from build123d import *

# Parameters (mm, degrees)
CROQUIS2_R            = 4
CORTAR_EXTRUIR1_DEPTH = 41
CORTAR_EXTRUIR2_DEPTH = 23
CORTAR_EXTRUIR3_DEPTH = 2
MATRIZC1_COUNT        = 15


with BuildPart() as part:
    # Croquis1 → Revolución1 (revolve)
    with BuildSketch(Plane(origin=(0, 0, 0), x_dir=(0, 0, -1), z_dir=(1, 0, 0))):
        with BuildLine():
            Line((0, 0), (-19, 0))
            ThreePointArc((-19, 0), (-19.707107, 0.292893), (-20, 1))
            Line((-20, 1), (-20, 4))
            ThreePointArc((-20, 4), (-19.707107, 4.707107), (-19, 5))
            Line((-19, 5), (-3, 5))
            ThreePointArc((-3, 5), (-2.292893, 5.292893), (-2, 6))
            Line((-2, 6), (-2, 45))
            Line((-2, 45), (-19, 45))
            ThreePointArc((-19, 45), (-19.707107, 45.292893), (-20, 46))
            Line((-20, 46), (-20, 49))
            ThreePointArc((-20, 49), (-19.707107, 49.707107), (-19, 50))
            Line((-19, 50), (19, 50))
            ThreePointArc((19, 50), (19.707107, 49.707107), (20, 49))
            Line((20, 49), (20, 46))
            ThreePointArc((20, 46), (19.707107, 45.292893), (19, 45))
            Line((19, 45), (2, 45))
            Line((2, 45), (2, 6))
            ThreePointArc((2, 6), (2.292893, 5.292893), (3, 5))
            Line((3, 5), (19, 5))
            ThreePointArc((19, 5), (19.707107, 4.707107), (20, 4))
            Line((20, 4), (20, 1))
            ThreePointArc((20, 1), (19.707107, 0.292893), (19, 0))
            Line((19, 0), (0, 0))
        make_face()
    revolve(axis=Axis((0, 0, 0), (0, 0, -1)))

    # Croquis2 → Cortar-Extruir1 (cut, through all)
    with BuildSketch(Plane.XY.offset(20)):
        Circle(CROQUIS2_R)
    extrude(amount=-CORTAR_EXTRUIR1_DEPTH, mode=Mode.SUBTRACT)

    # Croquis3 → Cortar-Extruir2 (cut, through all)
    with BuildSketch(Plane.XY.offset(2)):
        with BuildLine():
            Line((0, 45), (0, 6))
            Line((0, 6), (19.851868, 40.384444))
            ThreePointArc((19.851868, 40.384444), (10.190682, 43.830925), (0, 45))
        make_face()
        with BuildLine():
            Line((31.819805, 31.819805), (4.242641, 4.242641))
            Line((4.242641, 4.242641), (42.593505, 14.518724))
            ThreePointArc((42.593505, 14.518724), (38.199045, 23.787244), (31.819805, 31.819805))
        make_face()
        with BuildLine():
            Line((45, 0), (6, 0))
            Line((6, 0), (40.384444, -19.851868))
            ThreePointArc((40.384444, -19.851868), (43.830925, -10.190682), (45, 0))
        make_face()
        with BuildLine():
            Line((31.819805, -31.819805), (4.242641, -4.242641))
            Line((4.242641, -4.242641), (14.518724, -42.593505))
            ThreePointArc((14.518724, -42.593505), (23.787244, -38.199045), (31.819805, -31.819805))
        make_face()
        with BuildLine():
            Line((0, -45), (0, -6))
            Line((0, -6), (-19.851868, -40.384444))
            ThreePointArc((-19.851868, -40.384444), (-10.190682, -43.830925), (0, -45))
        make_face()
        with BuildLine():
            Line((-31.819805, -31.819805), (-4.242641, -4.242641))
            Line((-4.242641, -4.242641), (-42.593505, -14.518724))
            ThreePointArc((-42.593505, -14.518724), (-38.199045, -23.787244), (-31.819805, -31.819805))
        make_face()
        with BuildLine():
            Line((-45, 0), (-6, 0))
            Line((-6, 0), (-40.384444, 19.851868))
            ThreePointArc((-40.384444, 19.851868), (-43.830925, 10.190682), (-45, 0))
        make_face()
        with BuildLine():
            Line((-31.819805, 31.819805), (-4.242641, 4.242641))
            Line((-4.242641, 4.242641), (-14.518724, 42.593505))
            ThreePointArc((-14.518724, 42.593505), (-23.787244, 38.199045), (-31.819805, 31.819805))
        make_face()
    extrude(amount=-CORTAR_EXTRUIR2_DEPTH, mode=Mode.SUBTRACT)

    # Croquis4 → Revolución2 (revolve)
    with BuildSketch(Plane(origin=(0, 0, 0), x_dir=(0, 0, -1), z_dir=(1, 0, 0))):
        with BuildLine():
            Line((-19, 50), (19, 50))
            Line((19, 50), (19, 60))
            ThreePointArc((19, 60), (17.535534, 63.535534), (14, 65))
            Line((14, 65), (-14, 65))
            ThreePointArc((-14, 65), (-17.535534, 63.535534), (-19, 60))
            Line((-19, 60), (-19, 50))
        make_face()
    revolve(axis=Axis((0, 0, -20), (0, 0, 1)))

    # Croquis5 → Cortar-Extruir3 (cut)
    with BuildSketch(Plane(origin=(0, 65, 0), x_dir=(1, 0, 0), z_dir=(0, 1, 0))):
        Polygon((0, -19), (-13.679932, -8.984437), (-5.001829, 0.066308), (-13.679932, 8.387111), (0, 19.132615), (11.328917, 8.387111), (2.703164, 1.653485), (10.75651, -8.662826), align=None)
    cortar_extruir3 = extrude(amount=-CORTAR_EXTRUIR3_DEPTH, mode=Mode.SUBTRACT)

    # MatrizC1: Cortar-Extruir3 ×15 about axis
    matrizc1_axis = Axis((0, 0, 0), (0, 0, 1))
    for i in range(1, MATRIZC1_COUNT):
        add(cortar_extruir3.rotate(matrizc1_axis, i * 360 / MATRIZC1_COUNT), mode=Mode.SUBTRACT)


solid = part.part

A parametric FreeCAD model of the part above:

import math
import FreeCAD as App
import Part
import Sketcher
Q = App.Units.Quantity


def add_polygon(sketch, points):
    """Adds a closed chain of lines whose ends are joined by coincident constraints."""
    first, n = sketch.GeometryCount, len(points)
    for a, b in zip(points, points[1:] + points[:1]):
        sketch.addGeometry(Part.LineSegment(App.Vector(*a, 0), App.Vector(*b, 0)), False)
    for i in range(n):
        sketch.addConstraint(Sketcher.Constraint("Coincident", first + i, 2, first + (i + 1) % n, 1))

doc = App.newDocument("Part")
params = doc.addObject("Spreadsheet::Sheet", "Params")
for row, (alias, value) in enumerate([
    ("sketch1_radius", "0.999999 mm"),
    ("sketch1_width", "3 mm"),
    ("sketch1_width2", "39 mm"),
    ("sketch1_height", "38 mm"),
    ("sketch1_height2", "16 mm"),
    ("revolution_angle", "360 deg"),
    ("sketch2_diameter", "8 mm"),
    ("sketch3_radius", "45.000002 mm"),
    ("sketch3_width", "39 mm"),
    ("sketch3_length", "38.999999 mm"),
    ("sketch4_radius", "5 mm"),
    ("sketch4_width", "10 mm"),
    ("sketch4_height", "38 mm"),
    ("revolution2_angle", "360 deg"),
    ("pocket3_length", "2 mm"),
], start=1):
    params.set(f"A{row}", alias)
    params.set(f"B{row}", "=" + value)
    params.setAlias(f"B{row}", alias)

body = doc.addObject("PartDesign::Body", "Body")

sketch1 = body.newObject("Sketcher::SketchObject", "Sketch")
sketch1.AttachmentSupport = (doc.getObject("YZ_Plane"), [""])
sketch1.MapMode = "FlatFace"
sketch1.addGeometry(Part.ArcOfCircle(Part.Circle(App.Vector(0.999999, 19.000001, 0), App.Vector(0, 0, 1), 0.999999), math.radians(89.999957), math.radians(180.000043)), False)
sketch1.addGeometry(Part.LineSegment(App.Vector(0, 19, 0), App.Vector(0, -19, 0)), False)
sketch1.addGeometry(Part.ArcOfCircle(Part.Circle(App.Vector(0.999999, -19.000001, 0), App.Vector(0, 0, 1), 0.999999), math.radians(179.999957), math.radians(270.000043)), False)
sketch1.addGeometry(Part.LineSegment(App.Vector(1, -20, 0), App.Vector(4, -20, 0)), False)
sketch1.addGeometry(Part.ArcOfCircle(Part.Circle(App.Vector(4.000001, -19.000001, 0), App.Vector(0, 0, 1), 0.999999), math.radians(-90.000043), math.radians(0.000043)), False)
sketch1.addGeometry(Part.LineSegment(App.Vector(5, -19, 0), App.Vector(5, -3, 0)), False)
sketch1.addGeometry(Part.ArcOfCircle(Part.Circle(App.Vector(5.999999, -2.999999, 0), App.Vector(0, 0, 1), 0.999999), math.radians(89.999957), math.radians(180.000043)), False)
sketch1.addGeometry(Part.LineSegment(App.Vector(6, -2, 0), App.Vector(45, -2, 0)), False)
sketch1.addGeometry(Part.LineSegment(App.Vector(45, -2, 0), App.Vector(45, -19, 0)), False)
sketch1.addGeometry(Part.ArcOfCircle(Part.Circle(App.Vector(45.999999, -19.000001, 0), App.Vector(0, 0, 1), 0.999999), math.radians(179.999957), math.radians(270.000043)), False)
sketch1.addGeometry(Part.LineSegment(App.Vector(46, -20, 0), App.Vector(49, -20, 0)), False)
sketch1.addGeometry(Part.ArcOfCircle(Part.Circle(App.Vector(49.000001, -19.000001, 0), App.Vector(0, 0, 1), 0.999999), math.radians(-90.000043), math.radians(0.000043)), False)
sketch1.addGeometry(Part.LineSegment(App.Vector(50, -19, 0), App.Vector(50, 19, 0)), False)
sketch1.addGeometry(Part.ArcOfCircle(Part.Circle(App.Vector(49.000001, 19.000001, 0), App.Vector(0, 0, 1), 0.999999), math.radians(-0.000043), math.radians(90.000043)), False)
sketch1.addGeometry(Part.LineSegment(App.Vector(49, 20, 0), App.Vector(46, 20, 0)), False)
sketch1.addGeometry(Part.ArcOfCircle(Part.Circle(App.Vector(45.999999, 19.000001, 0), App.Vector(0, 0, 1), 0.999999), math.radians(89.999957), math.radians(180.000043)), False)
sketch1.addGeometry(Part.LineSegment(App.Vector(45, 19, 0), App.Vector(45, 2, 0)), False)
sketch1.addGeometry(Part.LineSegment(App.Vector(45, 2, 0), App.Vector(6, 2, 0)), False)
sketch1.addGeometry(Part.ArcOfCircle(Part.Circle(App.Vector(5.999999, 2.999999, 0), App.Vector(0, 0, 1), 0.999999), math.radians(179.999957), math.radians(270.000043)), False)
sketch1.addGeometry(Part.LineSegment(App.Vector(5, 3, 0), App.Vector(5, 19, 0)), False)
sketch1.addGeometry(Part.ArcOfCircle(Part.Circle(App.Vector(4.000001, 19.000001, 0), App.Vector(0, 0, 1), 0.999999), math.radians(-0.000043), math.radians(90.000043)), False)
sketch1.addGeometry(Part.LineSegment(App.Vector(4, 20, 0), App.Vector(1, 20, 0)), False)
sketch1.addConstraint(Sketcher.Constraint("Tangent", 0, 2, 1, 1))
sketch1.addConstraint(Sketcher.Constraint("Tangent", 1, 2, 2, 1))
sketch1.addConstraint(Sketcher.Constraint("Tangent", 2, 2, 3, 1))
sketch1.addConstraint(Sketcher.Constraint("Tangent", 3, 2, 4, 1))
sketch1.addConstraint(Sketcher.Constraint("Tangent", 4, 2, 5, 1))
sketch1.addConstraint(Sketcher.Constraint("Tangent", 5, 2, 6, 2))
sketch1.addConstraint(Sketcher.Constraint("Tangent", 6, 1, 7, 1))
sketch1.addConstraint(Sketcher.Constraint("Coincident", 7, 2, 8, 1))
sketch1.addConstraint(Sketcher.Constraint("Tangent", 8, 2, 9, 1))
sketch1.addConstraint(Sketcher.Constraint("Tangent", 9, 2, 10, 1))
sketch1.addConstraint(Sketcher.Constraint("Tangent", 10, 2, 11, 1))
sketch1.addConstraint(Sketcher.Constraint("Tangent", 11, 2, 12, 1))
sketch1.addConstraint(Sketcher.Constraint("Tangent", 12, 2, 13, 1))
sketch1.addConstraint(Sketcher.Constraint("Tangent", 13, 2, 14, 1))
sketch1.addConstraint(Sketcher.Constraint("Tangent", 14, 2, 15, 1))
sketch1.addConstraint(Sketcher.Constraint("Tangent", 15, 2, 16, 1))
sketch1.addConstraint(Sketcher.Constraint("Coincident", 16, 2, 17, 1))
sketch1.addConstraint(Sketcher.Constraint("Tangent", 17, 2, 18, 2))
sketch1.addConstraint(Sketcher.Constraint("Tangent", 18, 1, 19, 1))
sketch1.addConstraint(Sketcher.Constraint("Tangent", 19, 2, 20, 1))
sketch1.addConstraint(Sketcher.Constraint("Tangent", 20, 2, 21, 1))
sketch1.addConstraint(Sketcher.Constraint("Tangent", 21, 2, 0, 1))
sketch1.addConstraint(Sketcher.Constraint("Vertical", 1))
sketch1.addConstraint(Sketcher.Constraint("Horizontal", 3))
sketch1.addConstraint(Sketcher.Constraint("Vertical", 5))
sketch1.addConstraint(Sketcher.Constraint("Horizontal", 7))
sketch1.addConstraint(Sketcher.Constraint("Vertical", 8))
sketch1.addConstraint(Sketcher.Constraint("Horizontal", 10))
sketch1.addConstraint(Sketcher.Constraint("Vertical", 12))
sketch1.addConstraint(Sketcher.Constraint("Horizontal", 14))
sketch1.addConstraint(Sketcher.Constraint("Vertical", 16))
sketch1.addConstraint(Sketcher.Constraint("Horizontal", 17))
sketch1.addConstraint(Sketcher.Constraint("Vertical", 19))
sketch1.addConstraint(Sketcher.Constraint("Horizontal", 21))
sketch1.addConstraint(Sketcher.Constraint("Equal", 0, 2))
sketch1.addConstraint(Sketcher.Constraint("Equal", 2, 4))
sketch1.addConstraint(Sketcher.Constraint("Equal", 4, 6))
sketch1.addConstraint(Sketcher.Constraint("Equal", 6, 9))
sketch1.addConstraint(Sketcher.Constraint("Equal", 9, 11))
sketch1.addConstraint(Sketcher.Constraint("Equal", 11, 13))
sketch1.addConstraint(Sketcher.Constraint("Equal", 13, 15))
sketch1.addConstraint(Sketcher.Constraint("Equal", 15, 18))
sketch1.addConstraint(Sketcher.Constraint("Equal", 18, 20))
sketch1.addConstraint(Sketcher.Constraint("Symmetric", 0, 2, 1, 2, -1, 1))
sketch1.addConstraint(Sketcher.Constraint("Symmetric", 9, 3, 15, 3, -1))
sketch1.addConstraint(Sketcher.Constraint("Symmetric", 6, 3, 18, 3, -1))
sketch1.addConstraint(Sketcher.Constraint("Horizontal", 4, 3, 9, 3))
sketch1.addConstraint(Sketcher.Constraint("Equal", 3, 10))
sketch1.addConstraint(Sketcher.Constraint("Radius", 0, Q("0.999999 mm")))
sketch1.addConstraint(Sketcher.Constraint("DistanceX", 3, 1, 3, 2, Q("3 mm")))
sketch1.addConstraint(Sketcher.Constraint("DistanceX", 7, 1, 7, 2, Q("39 mm")))
sketch1.addConstraint(Sketcher.Constraint("DistanceY", 1, 2, 1, 1, Q("38 mm")))
sketch1.addConstraint(Sketcher.Constraint("DistanceY", 5, 1, 5, 2, Q("16 mm")))
sketch1.setExpression("Constraints[48]", "Params.sketch1_radius")
sketch1.setExpression("Constraints[49]", "Params.sketch1_width")
sketch1.setExpression("Constraints[50]", "Params.sketch1_width2")
sketch1.setExpression("Constraints[51]", "Params.sketch1_height")
sketch1.setExpression("Constraints[52]", "Params.sketch1_height2")
revolution = body.newObject("PartDesign::Revolution", "Revolution")
revolution.Profile = sketch1
revolution.ReferenceAxis = (sketch1, ["V_Axis"])
revolution.setExpression("Angle", "Params.revolution_angle")

sketch2 = body.newObject("Sketcher::SketchObject", "Sketch001")
sketch2.AttachmentSupport = (doc.getObject("XY_Plane"), [""])
sketch2.MapMode = "FlatFace"
sketch2.AttachmentOffset = App.Placement(App.Vector(0, 0, 20), App.Rotation())
sketch2.addGeometry(Part.Circle(App.Vector(0, 0, 0), App.Vector(0, 0, 1), 4), False)
sketch2.addConstraint(Sketcher.Constraint("Coincident", 0, 3, -1, 1))
sketch2.addConstraint(Sketcher.Constraint("Diameter", 0, Q("8 mm")))
sketch2.setExpression("Constraints[1]", "Params.sketch2_diameter")
pocket1 = body.newObject("PartDesign::Pocket", "Pocket")
pocket1.Profile = sketch2
pocket1.Type = "ThroughAll"

sketch3 = body.newObject("Sketcher::SketchObject", "Sketch002")
sketch3.AttachmentSupport = (doc.getObject("XY_Plane"), [""])
sketch3.MapMode = "FlatFace"
sketch3.AttachmentOffset = App.Placement(App.Vector(0, 0, 2), App.Rotation())
sketch3.addGeometry(Part.LineSegment(App.Vector(0, 45, 0), App.Vector(0, 6, 0)), False)
sketch3.addGeometry(Part.LineSegment(App.Vector(0, 6, 0), App.Vector(19.851868, 40.384444, 0)), False)
sketch3.addGeometry(Part.ArcOfCircle(Part.Circle(App.Vector(-0.000001, -0.000002, 0), App.Vector(0, 0, 1), 45.000002), math.radians(63.822554), math.radians(89.999999)), False)
sketch3.addGeometry(Part.LineSegment(App.Vector(31.819805, 31.819805, 0), App.Vector(4.242641, 4.242641, 0)), False)
sketch3.addGeometry(Part.LineSegment(App.Vector(4.242641, 4.242641, 0), App.Vector(42.593505, 14.518724, 0)), False)
sketch3.addGeometry(Part.ArcOfCircle(Part.Circle(App.Vector(0.000007, 0.000003, 0), App.Vector(0, 0, 1), 44.999992), math.radians(18.822553), math.radians(45.000003)), False)
sketch3.addGeometry(Part.LineSegment(App.Vector(45, 0, 0), App.Vector(6, 0, 0)), False)
sketch3.addGeometry(Part.LineSegment(App.Vector(6, 0, 0), App.Vector(40.384444, -19.851868, 0)), False)
sketch3.addGeometry(Part.ArcOfCircle(Part.Circle(App.Vector(-0.000002, 0.000001, 0), App.Vector(0, 0, 1), 45.000002), math.radians(-26.177446), math.radians(-0.000001)), False)
sketch3.addGeometry(Part.LineSegment(App.Vector(31.819805, -31.819805, 0), App.Vector(4.242641, -4.242641, 0)), False)
sketch3.addGeometry(Part.LineSegment(App.Vector(4.242641, -4.242641, 0), App.Vector(14.518724, -42.593505, 0)), False)
sketch3.addGeometry(Part.ArcOfCircle(Part.Circle(App.Vector(0.000003, -0.000007, 0), App.Vector(0, 0, 1), 44.999992), math.radians(-71.177447), math.radians(-44.999997)), False)
sketch3.addGeometry(Part.LineSegment(App.Vector(0, -45, 0), App.Vector(0, -6, 0)), False)
sketch3.addGeometry(Part.LineSegment(App.Vector(0, -6, 0), App.Vector(-19.851868, -40.384444, 0)), False)
sketch3.addGeometry(Part.ArcOfCircle(Part.Circle(App.Vector(0.000001, 0.000002, 0), App.Vector(0, 0, 1), 45.000002), math.radians(-116.177446), math.radians(-90.000001)), False)
sketch3.addGeometry(Part.LineSegment(App.Vector(-31.819805, -31.819805, 0), App.Vector(-4.242641, -4.242641, 0)), False)
sketch3.addGeometry(Part.LineSegment(App.Vector(-4.242641, -4.242641, 0), App.Vector(-42.593505, -14.518724, 0)), False)
sketch3.addGeometry(Part.ArcOfCircle(Part.Circle(App.Vector(-0.000007, -0.000003, 0), App.Vector(0, 0, 1), 44.999992), math.radians(-161.177447), math.radians(-134.999997)), False)
sketch3.addGeometry(Part.LineSegment(App.Vector(-45, 0, 0), App.Vector(-6, 0, 0)), False)
sketch3.addGeometry(Part.LineSegment(App.Vector(-6, 0, 0), App.Vector(-40.384444, 19.851868, 0)), False)
sketch3.addGeometry(Part.ArcOfCircle(Part.Circle(App.Vector(0.000002, -0.000001, 0), App.Vector(0, 0, 1), 45.000002), math.radians(153.822554), math.radians(179.999999)), False)
sketch3.addGeometry(Part.LineSegment(App.Vector(-31.819805, 31.819805, 0), App.Vector(-4.242641, 4.242641, 0)), False)
sketch3.addGeometry(Part.LineSegment(App.Vector(-4.242641, 4.242641, 0), App.Vector(-14.518724, 42.593505, 0)), False)
sketch3.addGeometry(Part.ArcOfCircle(Part.Circle(App.Vector(-0.000003, 0.000007, 0), App.Vector(0, 0, 1), 44.999992), math.radians(108.822553), math.radians(135.000003)), False)
sketch3.addConstraint(Sketcher.Constraint("Coincident", 0, 2, 1, 1))
sketch3.addConstraint(Sketcher.Constraint("Coincident", 1, 2, 2, 1))
sketch3.addConstraint(Sketcher.Constraint("Coincident", 2, 2, 0, 1))
sketch3.addConstraint(Sketcher.Constraint("Coincident", 3, 2, 4, 1))
sketch3.addConstraint(Sketcher.Constraint("Coincident", 4, 2, 5, 1))
sketch3.addConstraint(Sketcher.Constraint("Coincident", 5, 2, 3, 1))
sketch3.addConstraint(Sketcher.Constraint("Coincident", 6, 2, 7, 1))
sketch3.addConstraint(Sketcher.Constraint("Coincident", 7, 2, 8, 1))
sketch3.addConstraint(Sketcher.Constraint("Coincident", 8, 2, 6, 1))
sketch3.addConstraint(Sketcher.Constraint("Coincident", 9, 2, 10, 1))
sketch3.addConstraint(Sketcher.Constraint("Coincident", 10, 2, 11, 1))
sketch3.addConstraint(Sketcher.Constraint("Coincident", 11, 2, 9, 1))
sketch3.addConstraint(Sketcher.Constraint("Coincident", 12, 2, 13, 1))
sketch3.addConstraint(Sketcher.Constraint("Coincident", 13, 2, 14, 1))
sketch3.addConstraint(Sketcher.Constraint("Coincident", 14, 2, 12, 1))
sketch3.addConstraint(Sketcher.Constraint("Coincident", 15, 2, 16, 1))
sketch3.addConstraint(Sketcher.Constraint("Coincident", 16, 2, 17, 1))
sketch3.addConstraint(Sketcher.Constraint("Coincident", 17, 2, 15, 1))
sketch3.addConstraint(Sketcher.Constraint("Coincident", 18, 2, 19, 1))
sketch3.addConstraint(Sketcher.Constraint("Coincident", 19, 2, 20, 1))
sketch3.addConstraint(Sketcher.Constraint("Coincident", 20, 2, 18, 1))
sketch3.addConstraint(Sketcher.Constraint("Coincident", 21, 2, 22, 1))
sketch3.addConstraint(Sketcher.Constraint("Coincident", 22, 2, 23, 1))
sketch3.addConstraint(Sketcher.Constraint("Coincident", 23, 2, 21, 1))
sketch3.addConstraint(Sketcher.Constraint("Vertical", 0))
sketch3.addConstraint(Sketcher.Constraint("Horizontal", 6))
sketch3.addConstraint(Sketcher.Constraint("Vertical", 12))
sketch3.addConstraint(Sketcher.Constraint("Horizontal", 18))
sketch3.addConstraint(Sketcher.Constraint("Coincident", 2, 3, -1, 1))
sketch3.addConstraint(Sketcher.Constraint("Coincident", 5, 3, -1, 1))
sketch3.addConstraint(Sketcher.Constraint("Coincident", 8, 3, -1, 1))
sketch3.addConstraint(Sketcher.Constraint("Coincident", 11, 3, -1, 1))
sketch3.addConstraint(Sketcher.Constraint("Coincident", 14, 3, -1, 1))
sketch3.addConstraint(Sketcher.Constraint("Coincident", 17, 3, -1, 1))
sketch3.addConstraint(Sketcher.Constraint("Coincident", 20, 3, -1, 1))
sketch3.addConstraint(Sketcher.Constraint("Coincident", 23, 3, -1, 1))
sketch3.addConstraint(Sketcher.Constraint("Equal", 2, 8))
sketch3.addConstraint(Sketcher.Constraint("Equal", 5, 11))
sketch3.addConstraint(Sketcher.Constraint("Equal", 8, 14))
sketch3.addConstraint(Sketcher.Constraint("Equal", 11, 17))
sketch3.addConstraint(Sketcher.Constraint("Equal", 14, 20))
sketch3.addConstraint(Sketcher.Constraint("Equal", 17, 23))
sketch3.addConstraint(Sketcher.Constraint("Symmetric", 0, 2, 12, 2, -1, 1))
sketch3.addConstraint(Sketcher.Constraint("Symmetric", 3, 2, 15, 2, -1, 1))
sketch3.addConstraint(Sketcher.Constraint("Symmetric", 6, 2, 18, 2, -1, 1))
sketch3.addConstraint(Sketcher.Constraint("Symmetric", 9, 2, 21, 2, -1, 1))
sketch3.addConstraint(Sketcher.Constraint("Symmetric", 9, 2, 15, 2, -2))
sketch3.addConstraint(Sketcher.Constraint("PointOnObject", 0, 2, -2))
sketch3.addConstraint(Sketcher.Constraint("PointOnObject", 6, 2, -1))
sketch3.addConstraint(Sketcher.Constraint("Perpendicular", 1, 7))
sketch3.addConstraint(Sketcher.Constraint("Perpendicular", 3, 9))
sketch3.addConstraint(Sketcher.Constraint("Perpendicular", 4, 10))
sketch3.addConstraint(Sketcher.Constraint("Perpendicular", 7, 13))
sketch3.addConstraint(Sketcher.Constraint("Perpendicular", 9, 15))
sketch3.addConstraint(Sketcher.Constraint("Perpendicular", 10, 16))
sketch3.addConstraint(Sketcher.Constraint("Perpendicular", 13, 19))
sketch3.addConstraint(Sketcher.Constraint("Perpendicular", 15, 21))
sketch3.addConstraint(Sketcher.Constraint("Perpendicular", 16, 22))
sketch3.addConstraint(Sketcher.Constraint("Horizontal", 11, 2, 17, 2))
sketch3.addConstraint(Sketcher.Constraint("Equal", 18, 0))
sketch3.addConstraint(Sketcher.Constraint("Equal", 1, 4))
sketch3.addConstraint(Sketcher.Constraint("Equal", 7, 10))
sketch3.addConstraint(Sketcher.Constraint("Radius", 2, Q("45.000002 mm")))
sketch3.addConstraint(Sketcher.Constraint("DistanceX", 6, 2, 6, 1, Q("39 mm")))
sketch3.addConstraint(Sketcher.Constraint("Angle", 1, Q("60 deg")))
sketch3.addConstraint(Sketcher.Constraint("Angle", 4, Q("15 deg")))
sketch3.addConstraint(Sketcher.Constraint("Distance", 3, Q("38.999999 mm")))
sketch3.setExpression("Constraints[62]", "Params.sketch3_radius")
sketch3.setExpression("Constraints[63]", "Params.sketch3_width")
sketch3.setExpression("Constraints[66]", "Params.sketch3_length")
pocket2 = body.newObject("PartDesign::Pocket", "Pocket001")
pocket2.Profile = sketch3
pocket2.Type = "ThroughAll"

sketch4 = body.newObject("Sketcher::SketchObject", "Sketch003")
sketch4.AttachmentSupport = (doc.getObject("YZ_Plane"), [""])
sketch4.MapMode = "FlatFace"
sketch4.addGeometry(Part.LineSegment(App.Vector(50, 19, 0), App.Vector(50, -19, 0)), False)
sketch4.addGeometry(Part.LineSegment(App.Vector(50, -19, 0), App.Vector(60, -19, 0)), False)
sketch4.addGeometry(Part.ArcOfCircle(Part.Circle(App.Vector(60, -14, 0), App.Vector(0, 0, 1), 5), math.radians(-90.000004), math.radians(0.000004)), False)
sketch4.addGeometry(Part.LineSegment(App.Vector(65, -14, 0), App.Vector(65, 14, 0)), False)
sketch4.addGeometry(Part.ArcOfCircle(Part.Circle(App.Vector(60, 14, 0), App.Vector(0, 0, 1), 5), math.radians(-0.000004), math.radians(90.000004)), False)
sketch4.addGeometry(Part.LineSegment(App.Vector(60, 19, 0), App.Vector(50, 19, 0)), False)
sketch4.addConstraint(Sketcher.Constraint("Coincident", 0, 2, 1, 1))
sketch4.addConstraint(Sketcher.Constraint("Tangent", 1, 2, 2, 1))
sketch4.addConstraint(Sketcher.Constraint("Tangent", 2, 2, 3, 1))
sketch4.addConstraint(Sketcher.Constraint("Tangent", 3, 2, 4, 1))
sketch4.addConstraint(Sketcher.Constraint("Tangent", 4, 2, 5, 1))
sketch4.addConstraint(Sketcher.Constraint("Coincident", 5, 2, 0, 1))
sketch4.addConstraint(Sketcher.Constraint("Vertical", 0))
sketch4.addConstraint(Sketcher.Constraint("Horizontal", 1))
sketch4.addConstraint(Sketcher.Constraint("Vertical", 3))
sketch4.addConstraint(Sketcher.Constraint("Horizontal", 5))
sketch4.addConstraint(Sketcher.Constraint("Equal", 2, 4))
sketch4.addConstraint(Sketcher.Constraint("Radius", 2, Q("5 mm")))
sketch4.addConstraint(Sketcher.Constraint("DistanceX", 1, 1, 1, 2, Q("10 mm")))
sketch4.addConstraint(Sketcher.Constraint("DistanceY", 0, 2, 0, 1, Q("38 mm")))
sketch4.addConstraint(Sketcher.Constraint("DistanceX", -1, 1, 2, 3, Q("60 mm")))
sketch4.addConstraint(Sketcher.Constraint("DistanceY", 2, 3, -1, 1, Q("14 mm")))
sketch4.setExpression("Constraints[11]", "Params.sketch4_radius")
sketch4.setExpression("Constraints[12]", "Params.sketch4_width")
sketch4.setExpression("Constraints[13]", "Params.sketch4_height")
revolution2 = body.newObject("PartDesign::Revolution", "Revolution001")
revolution2.Profile = sketch4
revolution2.ReferenceAxis = (sketch4, ["V_Axis"])
revolution2.setExpression("Angle", "Params.revolution2_angle")

sketch5 = body.newObject("Sketcher::SketchObject", "Sketch004")
sketch5.AttachmentSupport = (doc.getObject("XZ_Plane"), [""])
sketch5.MapMode = "FlatFace"
sketch5.AttachmentOffset = App.Placement(App.Vector(0, 0, -65), App.Rotation())
add_polygon(sketch5, [(-13.679932, 8.984437), (0, 19), (10.75651, 8.662826), (2.703164, -1.653485), (11.328917, -8.387111), (0, -19.132615), (-13.679932, -8.387111), (-5.001829, -0.066308)])
sketch5.addConstraint(Sketcher.Constraint("PointOnObject", 0, 2, -2))
sketch5.addConstraint(Sketcher.Constraint("PointOnObject", 4, 2, -2))
sketch5.addConstraint(Sketcher.Constraint("Perpendicular", 2, 3))
sketch5.addConstraint(Sketcher.Constraint("Perpendicular", 6, 7))
sketch5.addConstraint(Sketcher.Constraint("Horizontal", 3, 2, 5, 2))
sketch5.addConstraint(Sketcher.Constraint("Vertical", 5, 2, 7, 2))
sketch5.addConstraint(Sketcher.Constraint("DistanceY", -1, 1, 0, 2, Q("19 mm")))
sketch5.addConstraint(Sketcher.Constraint("Distance", 2, Q("13.0875 mm")))
sketch5.addConstraint(Sketcher.Constraint("Distance", 0, Q("16.954411 mm")))
sketch5.addConstraint(Sketcher.Constraint("Distance", 3, Q("10.942821 mm")))
sketch5.addConstraint(Sketcher.Constraint("DistanceX", -1, 1, 1, 2, Q("10.75651 mm")))
sketch5.addConstraint(Sketcher.Constraint("DistanceY", 3, 2, -1, 1, Q("8.387111 mm")))
sketch5.addConstraint(Sketcher.Constraint("DistanceX", 6, 2, -1, 1, Q("5.001829 mm")))
sketch5.addConstraint(Sketcher.Constraint("DistanceY", 6, 2, -1, 1, Q("0.066308 mm")))
sketch5.addConstraint(Sketcher.Constraint("DistanceY", 2, 2, 1, 2, Q("10.316311 mm")))
sketch5.addConstraint(Sketcher.Constraint("DistanceY", 4, 2, 2, 2, Q("17.47913 mm")))
pocket3 = body.newObject("PartDesign::Pocket", "Pocket002")
pocket3.Profile = sketch5
pocket3.setExpression("Length", "Params.pocket3_length")
pocket3.Reversed = True
doc.recompute()

polarpattern = body.newObject("PartDesign::PolarPattern", "PolarPattern")
polarpattern.Originals = [pocket3]
polarpattern.Axis = (doc.getObject("Z_Axis"), [""])
polarpattern.Angle = 360
polarpattern.Occurrences = 15
body.Tip = polarpattern

doc.recompute()
